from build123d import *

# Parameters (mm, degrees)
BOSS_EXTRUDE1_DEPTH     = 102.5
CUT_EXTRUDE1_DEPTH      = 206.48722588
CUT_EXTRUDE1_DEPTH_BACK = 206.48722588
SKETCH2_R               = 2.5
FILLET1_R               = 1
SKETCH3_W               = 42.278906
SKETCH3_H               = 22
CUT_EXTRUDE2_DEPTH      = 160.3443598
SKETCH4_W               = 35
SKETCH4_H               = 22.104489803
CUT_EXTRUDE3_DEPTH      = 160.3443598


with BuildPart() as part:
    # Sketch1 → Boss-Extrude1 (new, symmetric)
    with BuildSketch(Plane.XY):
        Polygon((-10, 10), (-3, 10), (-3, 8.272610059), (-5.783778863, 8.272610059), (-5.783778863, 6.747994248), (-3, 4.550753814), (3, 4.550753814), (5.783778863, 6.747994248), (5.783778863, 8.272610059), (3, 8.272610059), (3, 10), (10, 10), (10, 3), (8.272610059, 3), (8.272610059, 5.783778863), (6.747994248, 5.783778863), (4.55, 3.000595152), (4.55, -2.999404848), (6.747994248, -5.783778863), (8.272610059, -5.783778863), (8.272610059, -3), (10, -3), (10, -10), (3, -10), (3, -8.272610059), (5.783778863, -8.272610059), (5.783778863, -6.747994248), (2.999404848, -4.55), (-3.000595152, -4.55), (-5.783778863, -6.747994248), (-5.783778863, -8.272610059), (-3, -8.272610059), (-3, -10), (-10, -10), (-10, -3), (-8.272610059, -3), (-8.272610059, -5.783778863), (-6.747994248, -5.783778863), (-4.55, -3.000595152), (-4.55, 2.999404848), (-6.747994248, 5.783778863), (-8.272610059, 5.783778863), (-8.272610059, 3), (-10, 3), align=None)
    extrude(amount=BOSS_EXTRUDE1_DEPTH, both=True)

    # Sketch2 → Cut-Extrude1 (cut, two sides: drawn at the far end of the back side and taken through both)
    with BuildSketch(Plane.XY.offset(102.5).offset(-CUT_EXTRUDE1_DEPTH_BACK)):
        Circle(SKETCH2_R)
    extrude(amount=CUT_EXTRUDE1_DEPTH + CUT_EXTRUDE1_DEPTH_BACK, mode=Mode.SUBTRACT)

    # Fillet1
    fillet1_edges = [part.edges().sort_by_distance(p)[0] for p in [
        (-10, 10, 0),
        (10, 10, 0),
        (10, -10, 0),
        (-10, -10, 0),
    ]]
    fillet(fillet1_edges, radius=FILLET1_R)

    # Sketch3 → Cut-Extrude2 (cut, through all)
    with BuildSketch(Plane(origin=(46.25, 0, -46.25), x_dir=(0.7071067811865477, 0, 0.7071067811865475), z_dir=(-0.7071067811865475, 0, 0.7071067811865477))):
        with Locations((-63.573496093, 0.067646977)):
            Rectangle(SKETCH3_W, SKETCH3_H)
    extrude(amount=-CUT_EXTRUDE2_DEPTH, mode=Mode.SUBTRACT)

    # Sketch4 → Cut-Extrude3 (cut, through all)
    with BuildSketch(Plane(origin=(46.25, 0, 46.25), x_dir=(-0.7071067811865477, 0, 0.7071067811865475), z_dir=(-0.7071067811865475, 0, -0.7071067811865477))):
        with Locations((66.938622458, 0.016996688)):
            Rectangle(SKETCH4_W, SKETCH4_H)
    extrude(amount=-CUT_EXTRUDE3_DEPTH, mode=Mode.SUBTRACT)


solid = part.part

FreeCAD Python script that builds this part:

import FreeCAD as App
import Part
import Sketcher
Q = App.Units.Quantity


def edges_at(feature, points):
    """Names of the edges that pass closest to the given points."""
    edges = feature.Shape.Edges
    near = lambda p: min(range(len(edges)), key=lambda i: edges[i].distToShape(Part.Vertex(*p))[0])
    return sorted({f"Edge{near(p) + 1}" for p in points})

doc = App.newDocument("Part")
body = doc.addObject("PartDesign::Body", "Body")

sketch1 = body.newObject("Sketcher::SketchObject", "Sketch")
sketch1.AttachmentSupport = (doc.getObject("XY_Plane"), [""])
sketch1.MapMode = "FlatFace"
sketch1.addGeometry([
    Part.LineSegment(App.Vector(-3, 10, 0), App.Vector(-10, 10, 0)),
    Part.LineSegment(App.Vector(-10, 10, 0), App.Vector(-10, 3, 0)),
    Part.LineSegment(App.Vector(-10, 3, 0), App.Vector(-8.3, 3, 0)),
    Part.LineSegment(App.Vector(-8.3, 3, 0), App.Vector(-8.3, 5.8, 0)),
    Part.LineSegment(App.Vector(-8.3, 5.8, 0), App.Vector(-6.7, 5.8, 0)),
    Part.LineSegment(App.Vector(-6.7, 5.8, 0), App.Vector(-4.5, 3, 0)),
    Part.LineSegment(App.Vector(-4.5, 3, 0), App.Vector(-4.5, -3, 0)),
    Part.LineSegment(App.Vector(-4.5, -3, 0), App.Vector(-6.7, -5.8, 0)),
    Part.LineSegment(App.Vector(-6.7, -5.8, 0), App.Vector(-8.3, -5.8, 0)),
    Part.LineSegment(App.Vector(-8.3, -5.8, 0), App.Vector(-8.3, -3, 0)),
    Part.LineSegment(App.Vector(-8.3, -3, 0), App.Vector(-10, -3, 0)),
    Part.LineSegment(App.Vector(-10, -3, 0), App.Vector(-10, -10, 0)),
    Part.LineSegment(App.Vector(-10, -10, 0), App.Vector(-3, -10, 0)),
    Part.LineSegment(App.Vector(-3, -10, 0), App.Vector(-3, -8.3, 0)),
    Part.LineSegment(App.Vector(-3, -8.3, 0), App.Vector(-5.8, -8.3, 0)),
    Part.LineSegment(App.Vector(-5.8, -8.3, 0), App.Vector(-5.8, -6.7, 0)),
    Part.LineSegment(App.Vector(-5.8, -6.7, 0), App.Vector(-3, -4.5, 0)),
    Part.LineSegment(App.Vector(-3, -4.5, 0), App.Vector(3, -4.5, 0)),
    Part.LineSegment(App.Vector(3, -4.5, 0), App.Vector(5.8, -6.7, 0)),
    Part.LineSegment(App.Vector(5.8, -6.7, 0), App.Vector(5.8, -8.3, 0)),
    Part.LineSegment(App.Vector(5.8, -8.3, 0), App.Vector(3, -8.3, 0)),
    Part.LineSegment(App.Vector(3, -8.3, 0), App.Vector(3, -10, 0)),
    Part.LineSegment(App.Vector(3, -10, 0), App.Vector(10, -10, 0)),
    Part.LineSegment(App.Vector(10, -10, 0), App.Vector(10, -3, 0)),
    Part.LineSegment(App.Vector(10, -3, 0), App.Vector(8.3, -3, 0)),
    Part.LineSegment(App.Vector(8.3, -3, 0), App.Vector(8.3, -5.8, 0)),
    Part.LineSegment(App.Vector(8.3, -5.8, 0), App.Vector(6.7, -5.8, 0)),
    Part.LineSegment(App.Vector(6.7, -5.8, 0), App.Vector(4.5, -3, 0)),
    Part.LineSegment(App.Vector(4.5, -3, 0), App.Vector(4.5, 3, 0)),
    Part.LineSegment(App.Vector(4.5, 3, 0), App.Vector(6.7, 5.8, 0)),
    Part.LineSegment(App.Vector(6.7, 5.8, 0), App.Vector(8.3, 5.8, 0)),
    Part.LineSegment(App.Vector(8.3, 5.8, 0), App.Vector(8.3, 3, 0)),
    Part.LineSegment(App.Vector(8.3, 3, 0), App.Vector(10, 3, 0)),
    Part.LineSegment(App.Vector(10, 3, 0), App.Vector(10, 10, 0)),
    Part.LineSegment(App.Vector(10, 10, 0), App.Vector(3, 10, 0)),
    Part.LineSegment(App.Vector(3, 10, 0), App.Vector(3, 8.3, 0)),
    Part.LineSegment(App.Vector(3, 8.3, 0), App.Vector(5.8, 8.3, 0)),
    Part.LineSegment(App.Vector(5.8, 8.3, 0), App.Vector(5.8, 6.7, 0)),
    Part.LineSegment(App.Vector(5.8, 6.7, 0), App.Vector(3, 4.6, 0)),
    Part.LineSegment(App.Vector(3, 4.6, 0), App.Vector(-3, 4.6, 0)),
    Part.LineSegment(App.Vector(-3, 4.6, 0), App.Vector(-5.8, 6.7, 0)),
    Part.LineSegment(App.Vector(-5.8, 6.7, 0), App.Vector(-5.8, 8.3, 0)),
    Part.LineSegment(App.Vector(-5.8, 8.3, 0), App.Vector(-3, 8.3, 0)),
    Part.LineSegment(App.Vector(-3, 8.3, 0), App.Vector(-3, 10, 0)),
], False)
sketch1.addConstraint([
    Sketcher.Constraint("Coincident", 0, 2, 1, 1),
    Sketcher.Constraint("Coincident", 1, 2, 2, 1),
    Sketcher.Constraint("Coincident", 2, 2, 3, 1),
    Sketcher.Constraint("Coincident", 3, 2, 4, 1),
    Sketcher.Constraint("Coincident", 4, 2, 5, 1),
    Sketcher.Constraint("Coincident", 5, 2, 6, 1),
    Sketcher.Constraint("Coincident", 6, 2, 7, 1),
    Sketcher.Constraint("Coincident", 7, 2, 8, 1),
    Sketcher.Constraint("Coincident", 8, 2, 9, 1),
    Sketcher.Constraint("Coincident", 9, 2, 10, 1),
    Sketcher.Constraint("Coincident", 10, 2, 11, 1),
    Sketcher.Constraint("Coincident", 11, 2, 12, 1),
    Sketcher.Constraint("Coincident", 12, 2, 13, 1),
    Sketcher.Constraint("Coincident", 13, 2, 14, 1),
    Sketcher.Constraint("Coincident", 14, 2, 15, 1),
    Sketcher.Constraint("Coincident", 15, 2, 16, 1),
    Sketcher.Constraint("Coincident", 16, 2, 17, 1),
    Sketcher.Constraint("Coincident", 17, 2, 18, 1),
    Sketcher.Constraint("Coincident", 18, 2, 19, 1),
    Sketcher.Constraint("Coincident", 19, 2, 20, 1),
    Sketcher.Constraint("Coincident", 20, 2, 21, 1),
    Sketcher.Constraint("Coincident", 21, 2, 22, 1),
    Sketcher.Constraint("Coincident", 22, 2, 23, 1),
    Sketcher.Constraint("Coincident", 23, 2, 24, 1),
    Sketcher.Constraint("Coincident", 24, 2, 25, 1),
    Sketcher.Constraint("Coincident", 25, 2, 26, 1),
    Sketcher.Constraint("Coincident", 26, 2, 27, 1),
    Sketcher.Constraint("Coincident", 27, 2, 28, 1),
    Sketcher.Constraint("Coincident", 28, 2, 29, 1),
    Sketcher.Constraint("Coincident", 29, 2, 30, 1),
    Sketcher.Constraint("Coincident", 30, 2, 31, 1),
    Sketcher.Constraint("Coincident", 31, 2, 32, 1),
    Sketcher.Constraint("Coincident", 32, 2, 33, 1),
    Sketcher.Constraint("Coincident", 33, 2, 34, 1),
    Sketcher.Constraint("Coincident", 34, 2, 35, 1),
    Sketcher.Constraint("Coincident", 35, 2, 36, 1),
    Sketcher.Constraint("Coincident", 36, 2, 37, 1),
    Sketcher.Constraint("Coincident", 37, 2, 38, 1),
    Sketcher.Constraint("Coincident", 38, 2, 39, 1),
    Sketcher.Constraint("Coincident", 39, 2, 40, 1),
    Sketcher.Constraint("Coincident", 40, 2, 41, 1),
    Sketcher.Constraint("Coincident", 41, 2, 42, 1),
    Sketcher.Constraint("Coincident", 42, 2, 43, 1),
    Sketcher.Constraint("Coincident", 43, 2, 0, 1),
    Sketcher.Constraint("Horizontal", 0),
    Sketcher.Constraint("Vertical", 1),
    Sketcher.Constraint("Horizontal", 2),
    Sketcher.Constraint("Vertical", 3),
    Sketcher.Constraint("Horizontal", 4),
    Sketcher.Constraint("Vertical", 6),
    Sketcher.Constraint("Horizontal", 8),
    Sketcher.Constraint("Vertical", 9),
    Sketcher.Constraint("Horizontal", 10),
    Sketcher.Constraint("Vertical", 11),
    Sketcher.Constraint("Horizontal", 12),
    Sketcher.Constraint("Vertical", 13),
    Sketcher.Constraint("Horizontal", 14),
    Sketcher.Constraint("Vertical", 15),
    Sketcher.Constraint("Horizontal", 17),
    Sketcher.Constraint("Vertical", 19),
    Sketcher.Constraint("Horizontal", 20),
    Sketcher.Constraint("Vertical", 21),
    Sketcher.Constraint("Horizontal", 22),
    Sketcher.Constraint("Vertical", 23),
    Sketcher.Constraint("Horizontal", 24),
    Sketcher.Constraint("Vertical", 25),
    Sketcher.Constraint("Horizontal", 26),
    Sketcher.Constraint("Vertical", 28),
    Sketcher.Constraint("Horizontal", 30),
    Sketcher.Constraint("Vertical", 31),
    Sketcher.Constraint("Horizontal", 32),
    Sketcher.Constraint("Vertical", 33),
    Sketcher.Constraint("Horizontal", 34),
    Sketcher.Constraint("Vertical", 35),
    Sketcher.Constraint("Horizontal", 36),
    Sketcher.Constraint("Vertical", 37),
    Sketcher.Constraint("Horizontal", 39),
    Sketcher.Constraint("Vertical", 41),
    Sketcher.Constraint("Horizontal", 42),
    Sketcher.Constraint("Vertical", 43),
    Sketcher.Constraint("Symmetric", 0, 2, 22, 2, -1, 1),
    Sketcher.Constraint("Symmetric", 2, 2, 24, 2, -1, 1),
    Sketcher.Constraint("Symmetric", 4, 2, 26, 2, -1, 1),
    Sketcher.Constraint("Symmetric", 5, 2, 27, 2, -1, 1),
    Sketcher.Constraint("Symmetric", 7, 2, 29, 2, -1, 1),
    Sketcher.Constraint("Symmetric", 9, 2, 31, 2, -1, 1),
    Sketcher.Constraint("Symmetric", 11, 2, 33, 2, -1, 1),
    Sketcher.Constraint("Symmetric", 13, 2, 35, 2, -1, 1),
    Sketcher.Constraint("Symmetric", 15, 2, 37, 2, -1, 1),
    Sketcher.Constraint("Symmetric", 18, 2, 40, 2, -1, 1),
    Sketcher.Constraint("Symmetric", 20, 2, 42, 2, -1, 1),
    Sketcher.Constraint("Symmetric", 15, 2, 18, 2, -2),
    Sketcher.Constraint("Symmetric", 13, 2, 20, 2, -2),
    Sketcher.Constraint("Symmetric", 11, 2, 22, 2, -2),
    Sketcher.Constraint("Symmetric", 9, 2, 24, 2, -2),
    Sketcher.Constraint("Symmetric", 7, 2, 26, 2, -2),
    Sketcher.Constraint("Parallel", 7, 29),
    Sketcher.Constraint("Vertical", 35, 2, 38, 2),
    Sketcher.Constraint("Vertical", 13, 2, 39, 2),
    Sketcher.Constraint("Equal", 17, 39),
    Sketcher.Constraint("Equal", 34, 1),
    Sketcher.Constraint("Equal", 42, 3),
    Sketcher.Constraint("Equal", 39, 6),
    Sketcher.Constraint("Equal", 32, 13),
    Sketcher.Constraint("Equal", 30, 15),
    Sketcher.Constraint("Equal", 7, 16),
    Sketcher.Constraint("Equal", 5, 18),
    Sketcher.Constraint("Equal", 29, 38),
    Sketcher.Constraint("DistanceX", 0, 2, 0, 1, Q("7 mm")),
    Sketcher.Constraint("DistanceX", 17, 1, 17, 2, Q("6 mm")),
    Sketcher.Constraint("DistanceY", -1, 1, 0, 2, Q("10 mm")),
    Sketcher.Constraint("DistanceX", 5, 2, -1, 1, Q("4.55 mm")),
    Sketcher.Constraint("DistanceX", 2, 1, 2, 2, Q("1.72739 mm")),
    Sketcher.Constraint("DistanceX", 14, 2, 14, 1, Q("2.783779 mm")),
    Sketcher.Constraint("DistanceY", 15, 2, 6, 2, Q("3.747399 mm")),
    Sketcher.Constraint("Distance", 5, Q("3.547382 mm")),
])
pad1 = body.newObject("PartDesign::Pad", "Pad")
pad1.Profile = sketch1
pad1.Length = 205
pad1.Midplane = True

sketch2 = body.newObject("Sketcher::SketchObject", "Sketch001")
sketch2.AttachmentSupport = (doc.getObject("XY_Plane"), [""])
sketch2.MapMode = "FlatFace"
sketch2.AttachmentOffset = App.Placement(App.Vector(0, 0, 102.5), App.Rotation())
sketch2.addGeometry(Part.Circle(App.Vector(0, 0, 0), App.Vector(0, 0, 1), 2.5), False)
sketch2.addConstraint([
    Sketcher.Constraint("Coincident", 0, 3, -1, 1),
    Sketcher.Constraint("Diameter", 0, Q("5 mm")),
])
pocket1 = body.newObject("PartDesign::Pocket", "Pocket")
pocket1.Profile = sketch2
pocket1.Type = "ThroughAll"
pocket1.Midplane = True
doc.recompute()

fillet = body.newObject("PartDesign::Fillet", "Fillet")
fillet.Base = (pocket1, edges_at(pocket1, [
    (-10, 10, 0),
    (10, 10, 0),
    (10, -10, 0),
    (-10, -10, 0),
]))
fillet.Radius = 1

sketch3 = body.newObject("Sketcher::SketchObject", "Sketch002")
sketch3.Placement = App.Placement(App.Vector(46.25, 0, -46.25), App.Rotation(App.Vector(0.707106781, 0, 0.707106781), App.Vector(0, 0.999999999, 0), App.Vector(-0.707106781, 0, 0.707106781), "ZXY"))
sketch3.addGeometry([
    Part.LineSegment(App.Vector(-85, 11, 0), App.Vector(-85, -11, 0)),
    Part.LineSegment(App.Vector(-85, -11, 0), App.Vector(-42, -11, 0)),
    Part.LineSegment(App.Vector(-42, -11, 0), App.Vector(-42, 11, 0)),
    Part.LineSegment(App.Vector(-42, 11, 0), App.Vector(-85, 11, 0)),
], False)
sketch3.addConstraint([
    Sketcher.Constraint("Coincident", 0, 2, 1, 1),
    Sketcher.Constraint("Coincident", 1, 2, 2, 1),
    Sketcher.Constraint("Coincident", 2, 2, 3, 1),
    Sketcher.Constraint("Coincident", 3, 2, 0, 1),
    Sketcher.Constraint("Vertical", 0),
    Sketcher.Constraint("Horizontal", 1),
    Sketcher.Constraint("Vertical", 2),
    Sketcher.Constraint("Horizontal", 3),
    Sketcher.Constraint("DistanceY", 0, 2, 0, 1, Q("22 mm")),
    Sketcher.Constraint("DistanceX", 1, 1, 1, 2, Q("42.278906 mm")),
    Sketcher.Constraint("DistanceX", 0, 2, -1, 1, Q("84.712949 mm")),
    Sketcher.Constraint("DistanceY", 0, 2, -1, 1, Q("10.932353 mm")),
])
pocket2 = body.newObject("PartDesign::Pocket", "Pocket001")
pocket2.Profile = sketch3
pocket2.Type = "ThroughAll"

sketch4 = body.newObject("Sketcher::SketchObject", "Sketch003")
sketch4.Placement = App.Placement(App.Vector(46.25, 0, 46.25), App.Rotation(App.Vector(-0.707106781, 0, 0.707106781), App.Vector(0, 0.999999999, 0), App.Vector(-0.707106781, 0, -0.707106781), "ZXY"))
sketch4.addGeometry([
    Part.LineSegment(App.Vector(49, 11, 0), App.Vector(49, -11, 0)),
    Part.LineSegment(App.Vector(49, -11, 0), App.Vector(84, -11, 0)),
    Part.LineSegment(App.Vector(84, -11, 0), App.Vector(84, 11, 0)),
    Part.LineSegment(App.Vector(84, 11, 0), App.Vector(49, 11, 0)),
], False)
sketch4.addConstraint([
    Sketcher.Constraint("Coincident", 0, 2, 1, 1),
    Sketcher.Constraint("Coincident", 1, 2, 2, 1),
    Sketcher.Constraint("Coincident", 2, 2, 3, 1),
    Sketcher.Constraint("Coincident", 3, 2, 0, 1),
    Sketcher.Constraint("Vertical", 0),
    Sketcher.Constraint("Horizontal", 1),
    Sketcher.Constraint("Vertical", 2),
    Sketcher.Constraint("Horizontal", 3),
    Sketcher.Constraint("DistanceX", 1, 1, 1, 2, Q("35 mm")),
    Sketcher.Constraint("DistanceY", 0, 2, 0, 1, Q("22.10449 mm")),
    Sketcher.Constraint("DistanceY", 0, 2, -1, 1, Q("11.035248 mm")),
    Sketcher.Constraint("DistanceX", -1, 1, 0, 2, Q("49.438622 mm")),
])
pocket3 = body.newObject("PartDesign::Pocket", "Pocket002")
pocket3.Profile = sketch4
pocket3.Type = "ThroughAll"

doc.recompute()
